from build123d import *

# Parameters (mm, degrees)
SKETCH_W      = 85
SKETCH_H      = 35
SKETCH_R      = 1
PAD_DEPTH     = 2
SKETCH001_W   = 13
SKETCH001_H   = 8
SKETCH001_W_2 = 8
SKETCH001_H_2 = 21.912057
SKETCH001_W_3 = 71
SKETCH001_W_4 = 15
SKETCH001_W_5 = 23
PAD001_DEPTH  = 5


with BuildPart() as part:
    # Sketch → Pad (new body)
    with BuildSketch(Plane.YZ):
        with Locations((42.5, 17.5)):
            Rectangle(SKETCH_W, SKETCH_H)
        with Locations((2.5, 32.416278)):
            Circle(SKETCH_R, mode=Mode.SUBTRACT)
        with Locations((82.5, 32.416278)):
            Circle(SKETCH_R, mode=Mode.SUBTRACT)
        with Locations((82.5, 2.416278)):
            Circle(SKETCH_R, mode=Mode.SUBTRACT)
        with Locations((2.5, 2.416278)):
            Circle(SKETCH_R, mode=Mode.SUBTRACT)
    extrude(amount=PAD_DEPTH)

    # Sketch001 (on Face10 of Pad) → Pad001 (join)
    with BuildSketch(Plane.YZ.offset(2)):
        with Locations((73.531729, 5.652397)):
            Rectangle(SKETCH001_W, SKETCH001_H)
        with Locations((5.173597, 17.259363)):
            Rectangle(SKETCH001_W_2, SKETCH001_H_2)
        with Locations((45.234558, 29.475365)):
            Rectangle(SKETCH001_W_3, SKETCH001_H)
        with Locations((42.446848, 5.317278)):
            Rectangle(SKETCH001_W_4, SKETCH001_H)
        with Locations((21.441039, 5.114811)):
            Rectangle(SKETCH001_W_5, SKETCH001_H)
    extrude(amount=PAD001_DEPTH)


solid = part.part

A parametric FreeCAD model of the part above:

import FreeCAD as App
import Part
import Sketcher
Q = App.Units.Quantity


def add_polygon(sketch, points):
    """Adds a closed chain of lines whose ends are joined by coincident constraints."""
    first, n = sketch.GeometryCount, len(points)
    for a, b in zip(points, points[1:] + points[:1]):
        sketch.addGeometry(Part.LineSegment(App.Vector(*a, 0), App.Vector(*b, 0)), False)
    for i in range(n):
        sketch.addConstraint(Sketcher.Constraint("Coincident", first + i, 2, first + (i + 1) % n, 1))

doc = App.newDocument("Part")
params = doc.addObject("Spreadsheet::Sheet", "Params")
for row, (alias, value) in enumerate([
    ("sketch1_diameter", "2 mm"),
    ("sketch1_width", "85 mm"),
    ("sketch1_height", "35 mm"),
    ("pad1_length", "2 mm"),
    ("sketch2_width", "13 mm"),
    ("sketch2_width2", "8 mm"),
    ("sketch2_width3", "71 mm"),
    ("sketch2_width4", "15 mm"),
    ("sketch2_width5", "23 mm"),
    ("pad2_length", "5 mm"),
], start=1):
    params.set(f"A{row}", alias)
    params.set(f"B{row}", "=" + value)
    params.setAlias(f"B{row}", alias)

body = doc.addObject("PartDesign::Body", "Body")

# Sketch on YZ plane
sketch1 = body.newObject("Sketcher::SketchObject", "Sketch")
sketch1.AttachmentSupport = (doc.getObject("YZ_Plane"), [""])
sketch1.MapMode = "FlatFace"
add_polygon(sketch1, [(0, 35), (0, 0), (85, 0), (85, 35)])  # lines 0-3
sketch1.addGeometry(Part.Circle(App.Vector(2.5, 2.4, 0), App.Vector(0, 0, 1), 1), False)  # 4
sketch1.addGeometry(Part.Circle(App.Vector(82.5, 2.4, 0), App.Vector(0, 0, 1), 1), False)  # 5
sketch1.addGeometry(Part.Circle(App.Vector(2.5, 32.4, 0), App.Vector(0, 0, 1), 1), False)  # 6
sketch1.addGeometry(Part.Circle(App.Vector(82.5, 32.4, 0), App.Vector(0, 0, 1), 1), False)  # 7
sketch1.addConstraint([
    Sketcher.Constraint("Vertical", 0),
    Sketcher.Constraint("Horizontal", 1),
    Sketcher.Constraint("Vertical", 2),
    Sketcher.Constraint("Horizontal", 3),
    Sketcher.Constraint("Coincident", 0, 2, -1, 1),
    Sketcher.Constraint("Equal", 4, 5),
    Sketcher.Constraint("Equal", 5, 6),
    Sketcher.Constraint("Equal", 6, 7),
    Sketcher.Constraint("Horizontal", 4, 3, 5, 3),
    Sketcher.Constraint("Horizontal", 6, 3, 7, 3),
    Sketcher.Constraint("Vertical", 4, 3, 6, 3),
    Sketcher.Constraint("Vertical", 5, 3, 7, 3),
    Sketcher.Constraint("Diameter", 4, Q("2 mm")),
    Sketcher.Constraint("DistanceX", 1, 1, 1, 2, Q("85 mm")),
    Sketcher.Constraint("DistanceY", 0, 2, 0, 1, Q("35 mm")),
    Sketcher.Constraint("DistanceX", 4, 3, 5, 3, Q("80 mm")),
    Sketcher.Constraint("DistanceY", 4, 3, 6, 3, Q("30 mm")),
    Sketcher.Constraint("DistanceX", -1, 1, 4, 3, Q("2.5 mm")),
    Sketcher.Constraint("DistanceY", -1, 1, 4, 3, Q("2.416278 mm")),
])
sketch1.setExpression("Constraints[16]", "Params.sketch1_diameter")
sketch1.setExpression("Constraints[17]", "Params.sketch1_width")
sketch1.setExpression("Constraints[18]", "Params.sketch1_height")
pad1 = body.newObject("PartDesign::Pad", "Pad")
pad1.Profile = sketch1
pad1.setExpression("Length", "Params.pad1_length")

# Sketch on YZ plane
sketch2 = body.newObject("Sketcher::SketchObject", "Sketch001")
sketch2.AttachmentSupport = (doc.getObject("YZ_Plane"), [""])
sketch2.MapMode = "FlatFace"
sketch2.AttachmentOffset = App.Placement(App.Vector(0, 0, 2), App.Rotation())
add_polygon(sketch2, [(67, 10), (67, 2), (80, 2), (80, 10)])  # lines 0-3
add_polygon(sketch2, [(1, 28), (1, 6), (9, 6), (9, 28)])  # lines 4-7
add_polygon(sketch2, [(10, 33), (10, 25), (81, 25), (81, 33)])  # lines 8-11
add_polygon(sketch2, [(35, 9), (35, 1), (50, 1), (50, 9)])  # lines 12-15
add_polygon(sketch2, [(10, 9), (10, 1), (33, 1), (33, 9)])  # lines 16-19
sketch2.addConstraint([
    Sketcher.Constraint("Vertical", 0),
    Sketcher.Constraint("Horizontal", 1),
    Sketcher.Constraint("Vertical", 2),
    Sketcher.Constraint("Horizontal", 3),
    Sketcher.Constraint("Vertical", 4),
    Sketcher.Constraint("Horizontal", 5),
    Sketcher.Constraint("Vertical", 6),
    Sketcher.Constraint("Horizontal", 7),
    Sketcher.Constraint("Vertical", 8),
    Sketcher.Constraint("Horizontal", 9),
    Sketcher.Constraint("Vertical", 10),
    Sketcher.Constraint("Horizontal", 11),
    Sketcher.Constraint("Vertical", 12),
    Sketcher.Constraint("Horizontal", 13),
    Sketcher.Constraint("Vertical", 14),
    Sketcher.Constraint("Horizontal", 15),
    Sketcher.Constraint("Vertical", 16),
    Sketcher.Constraint("Horizontal", 17),
    Sketcher.Constraint("Vertical", 18),
    Sketcher.Constraint("Horizontal", 19),
    Sketcher.Constraint("Equal", 7, 0),
    Sketcher.Constraint("Equal", 2, 8),
    Sketcher.Constraint("Equal", 10, 12),
    Sketcher.Constraint("Equal", 14, 16),
    Sketcher.Constraint("DistanceX", 1, 1, 1, 2, Q("13 mm")),
    Sketcher.Constraint("DistanceX", 5, 1, 5, 2, Q("8 mm")),
    Sketcher.Constraint("DistanceX", 9, 1, 9, 2, Q("71 mm")),
    Sketcher.Constraint("DistanceX", 13, 1, 13, 2, Q("15 mm")),
    Sketcher.Constraint("DistanceX", 17, 1, 17, 2, Q("23 mm")),
    Sketcher.Constraint("DistanceY", 4, 2, 4, 1, Q("21.912057 mm")),
    Sketcher.Constraint("DistanceX", -1, 1, 0, 2, Q("67.031729 mm")),
    Sketcher.Constraint("DistanceY", -1, 1, 6, 2, Q("28.215391 mm")),
    Sketcher.Constraint("DistanceX", -1, 1, 9, 2, Q("80.734558 mm")),
    Sketcher.Constraint("DistanceX", -1, 1, 12, 2, Q("34.946848 mm")),
    Sketcher.Constraint("DistanceX", -1, 1, 16, 2, Q("9.941039 mm")),
    Sketcher.Constraint("DistanceY", -1, 1, 16, 2, Q("1.114811 mm")),
    Sketcher.Constraint("DistanceX", 4, 2, 3, 2, Q("65.858132 mm")),
    Sketcher.Constraint("DistanceY", 5, 2, 8, 2, Q("19.17203 mm")),
    Sketcher.Constraint("DistanceY", 12, 2, 0, 2, Q("0.335119 mm")),
    Sketcher.Constraint("DistanceY", -1, 1, 0, 2, Q("1.652397 mm")),
])
sketch2.setExpression("Constraints[44]", "Params.sketch2_width")
sketch2.setExpression("Constraints[45]", "Params.sketch2_width2")
sketch2.setExpression("Constraints[46]", "Params.sketch2_width3")
sketch2.setExpression("Constraints[47]", "Params.sketch2_width4")
sketch2.setExpression("Constraints[48]", "Params.sketch2_width5")
pad2 = body.newObject("PartDesign::Pad", "Pad001")
pad2.Profile = sketch2
pad2.setExpression("Length", "Params.pad2_length")

doc.recompute()
